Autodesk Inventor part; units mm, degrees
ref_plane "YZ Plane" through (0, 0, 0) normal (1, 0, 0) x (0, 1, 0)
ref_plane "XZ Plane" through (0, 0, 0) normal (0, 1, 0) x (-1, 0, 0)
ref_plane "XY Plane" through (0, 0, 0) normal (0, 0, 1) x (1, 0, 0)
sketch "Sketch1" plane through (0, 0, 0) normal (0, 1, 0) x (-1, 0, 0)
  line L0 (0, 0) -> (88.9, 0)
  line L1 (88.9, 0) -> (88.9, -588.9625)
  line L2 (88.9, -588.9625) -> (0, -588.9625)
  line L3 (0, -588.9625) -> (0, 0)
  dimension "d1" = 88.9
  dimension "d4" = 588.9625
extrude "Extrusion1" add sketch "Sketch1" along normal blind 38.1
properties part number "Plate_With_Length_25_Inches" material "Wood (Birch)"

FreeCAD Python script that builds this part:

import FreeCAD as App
import Part
import Sketcher
from FreeCAD import Vector
Q = App.Units.Quantity


def add_polygon(sketch, points):
    """Adds a closed chain of lines whose ends are joined by coincident constraints."""
    first, n = sketch.GeometryCount, len(points)
    for a, b in zip(points, points[1:] + points[:1]):
        sketch.addGeometry(Part.LineSegment(App.Vector(*a, 0), App.Vector(*b, 0)), False)
    for i in range(n):
        sketch.addConstraint(Sketcher.Constraint("Coincident", first + i, 2, first + (i + 1) % n, 1))

doc = App.newDocument("Part")
body = doc.addObject("PartDesign::Body", "Body")

# Sketch on XZ plane
sketch1 = body.newObject("Sketcher::SketchObject", "Sketch")
sketch1.AttachmentSupport = (doc.getObject("XZ_Plane"), [""])
sketch1.MapMode = "FlatFace"
add_polygon(sketch1, [(-89, 0), (0, 0), (0, -589), (-89, -589)])  # lines 0-3
sketch1.addConstraint([
    Sketcher.Constraint("Horizontal", 0),
    Sketcher.Constraint("Vertical", 1),
    Sketcher.Constraint("Horizontal", 2),
    Sketcher.Constraint("Vertical", 3),
    Sketcher.Constraint("Coincident", 0, 2, -1, 1),
    Sketcher.Constraint("DistanceX", 0, 1, 0, 2, Q("3.5 in")),
    Sketcher.Constraint("DistanceY", 1, 2, 1, 1, Q("23.1875 in")),
])
pad1 = body.newObject("PartDesign::Pad", "Pad")
pad1.Profile = sketch1
pad1.Length = Q("1.5 in")
pad1.Reversed = True

doc.recompute()
